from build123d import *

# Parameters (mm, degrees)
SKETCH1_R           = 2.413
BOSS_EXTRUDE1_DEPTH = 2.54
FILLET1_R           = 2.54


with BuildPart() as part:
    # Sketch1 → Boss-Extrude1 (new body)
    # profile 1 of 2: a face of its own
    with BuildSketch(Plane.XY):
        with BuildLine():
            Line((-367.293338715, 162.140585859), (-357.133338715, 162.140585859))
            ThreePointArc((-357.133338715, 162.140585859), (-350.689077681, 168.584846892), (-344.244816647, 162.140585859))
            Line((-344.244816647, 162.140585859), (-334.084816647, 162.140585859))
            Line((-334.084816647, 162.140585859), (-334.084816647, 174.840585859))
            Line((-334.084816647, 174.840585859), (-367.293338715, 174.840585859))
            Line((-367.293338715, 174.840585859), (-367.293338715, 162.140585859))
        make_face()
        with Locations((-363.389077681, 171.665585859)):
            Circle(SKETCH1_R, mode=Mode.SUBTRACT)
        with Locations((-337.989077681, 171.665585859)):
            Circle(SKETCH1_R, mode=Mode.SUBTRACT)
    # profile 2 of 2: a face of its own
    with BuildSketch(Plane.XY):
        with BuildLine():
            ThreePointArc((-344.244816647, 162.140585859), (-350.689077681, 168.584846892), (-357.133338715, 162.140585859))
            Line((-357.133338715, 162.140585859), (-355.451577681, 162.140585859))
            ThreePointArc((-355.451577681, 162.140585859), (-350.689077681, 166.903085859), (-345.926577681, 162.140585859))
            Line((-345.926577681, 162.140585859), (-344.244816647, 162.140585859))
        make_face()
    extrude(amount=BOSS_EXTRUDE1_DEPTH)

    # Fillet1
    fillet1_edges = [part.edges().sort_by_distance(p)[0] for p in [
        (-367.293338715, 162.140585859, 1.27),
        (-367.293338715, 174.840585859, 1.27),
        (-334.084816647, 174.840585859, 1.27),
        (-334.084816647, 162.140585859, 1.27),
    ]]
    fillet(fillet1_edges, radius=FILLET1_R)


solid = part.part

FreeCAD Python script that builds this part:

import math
import FreeCAD as App
import Part
import Sketcher

V = App.Vector
Q = App.Units.Quantity


def edges_at(feature, points):
    """Names of the edges that pass closest to the given points."""
    edges = feature.Shape.Edges
    near = lambda p: min(range(len(edges)), key=lambda i: edges[i].distToShape(Part.Vertex(*p))[0])
    return sorted({f"Edge{near(p) + 1}" for p in points})

doc = App.newDocument("Part")
body = doc.addObject("PartDesign::Body", "Body")

# Sketch on XY plane
sketch1 = doc.addObject("Sketcher::SketchObject", "Sketch")
body.addObject(sketch1)
sketch1.AttachmentSupport = (doc.XY_Plane, [""])
sketch1.MapMode = "FlatFace"
sketch1.addGeometry(Part.LineSegment(V(-367.3, 162.1, 0), V(-355.5, 162.1, 0)), False)
sketch1.addGeometry(Part.ArcOfCircle(Part.Circle(V(-350.7, 162.1, 0), V(0, 0, 1), 4.8), math.radians(0), math.radians(180)), False)
sketch1.addGeometry(Part.LineSegment(V(-345.9, 162.1, 0), V(-334.1, 162.1, 0)), False)
sketch1.addGeometry(Part.LineSegment(V(-334.1, 162.1, 0), V(-334.1, 174.8, 0)), False)
sketch1.addGeometry(Part.LineSegment(V(-334.1, 174.8, 0), V(-367.3, 174.8, 0)), False)
sketch1.addGeometry(Part.LineSegment(V(-367.3, 174.8, 0), V(-367.3, 162.1, 0)), False)
sketch1.addGeometry(Part.Circle(V(-363.4, 171.7, 0), V(0, 0, 1), 2.4), False)
sketch1.addGeometry(Part.Circle(V(-338, 171.7, 0), V(0, 0, 1), 2.4), False)
sketch1.addConstraint(Sketcher.Constraint("Coincident", 0, 2, 1, 2))
sketch1.addConstraint(Sketcher.Constraint("Coincident", 1, 1, 2, 1))
sketch1.addConstraint(Sketcher.Constraint("Coincident", 2, 2, 3, 1))
sketch1.addConstraint(Sketcher.Constraint("Coincident", 3, 2, 4, 1))
sketch1.addConstraint(Sketcher.Constraint("Coincident", 4, 2, 5, 1))
sketch1.addConstraint(Sketcher.Constraint("Coincident", 5, 2, 0, 1))
sketch1.addConstraint(Sketcher.Constraint("Horizontal", 0))
sketch1.addConstraint(Sketcher.Constraint("Horizontal", 2))
sketch1.addConstraint(Sketcher.Constraint("Vertical", 3))
sketch1.addConstraint(Sketcher.Constraint("Horizontal", 4))
sketch1.addConstraint(Sketcher.Constraint("Vertical", 5))
sketch1.addConstraint(Sketcher.Constraint("Equal", 6, 7))
sketch1.addConstraint(Sketcher.Constraint("Horizontal", 6, 3, 7, 3))
sketch1.addConstraint(Sketcher.Constraint("Horizontal", 1, 3, 0, 2))
sketch1.addConstraint(Sketcher.Constraint("Horizontal", 0, 2, 1, 1))
sketch1.addConstraint(Sketcher.Constraint("Equal", 0, 2))
sketch1.addConstraint(Sketcher.Constraint("Diameter", 6, Q("0.19 in")))
sketch1.addConstraint(Sketcher.Constraint("DistanceY", 3, 1, 3, 2, Q("0.5 in")))
sketch1.addConstraint(Sketcher.Constraint("Radius", 1, Q("0.1875 in")))
sketch1.addConstraint(Sketcher.Constraint("DistanceX", 6, 3, 7, 3, Q("1 in")))
sketch1.addConstraint(Sketcher.Constraint("DistanceX", 6, 3, 1, 3, Q("0.5 in")))
sketch1.addConstraint(Sketcher.Constraint("DistanceY", 1, 3, 6, 3, Q("0.375 in")))
sketch1.addConstraint(Sketcher.Constraint("DistanceX", 0, 1, 0, 2, Q("11.841761 mm")))
sketch1.addConstraint(Sketcher.Constraint("DistanceX", 4, 2, -1, 1, Q("367.293339 mm")))
sketch1.addConstraint(Sketcher.Constraint("DistanceY", -1, 1, 1, 3, Q("162.140586 mm")))
pad1 = doc.addObject("PartDesign::Pad", "Pad")
body.addObject(pad1)
pad1.Profile = sketch1
pad1.Length = Q("0.1 in")
doc.recompute()

fillet = doc.addObject("PartDesign::Fillet", "Fillet")
body.addObject(fillet)
fillet.Base = (pad1, edges_at(pad1, [
    (-367.293, 162.141, 1.27),
    (-367.293, 174.841, 1.27),
    (-334.085, 174.841, 1.27),
    (-334.085, 162.141, 1.27),
]))
fillet.Radius = Q("0.1 in")

doc.recompute()
